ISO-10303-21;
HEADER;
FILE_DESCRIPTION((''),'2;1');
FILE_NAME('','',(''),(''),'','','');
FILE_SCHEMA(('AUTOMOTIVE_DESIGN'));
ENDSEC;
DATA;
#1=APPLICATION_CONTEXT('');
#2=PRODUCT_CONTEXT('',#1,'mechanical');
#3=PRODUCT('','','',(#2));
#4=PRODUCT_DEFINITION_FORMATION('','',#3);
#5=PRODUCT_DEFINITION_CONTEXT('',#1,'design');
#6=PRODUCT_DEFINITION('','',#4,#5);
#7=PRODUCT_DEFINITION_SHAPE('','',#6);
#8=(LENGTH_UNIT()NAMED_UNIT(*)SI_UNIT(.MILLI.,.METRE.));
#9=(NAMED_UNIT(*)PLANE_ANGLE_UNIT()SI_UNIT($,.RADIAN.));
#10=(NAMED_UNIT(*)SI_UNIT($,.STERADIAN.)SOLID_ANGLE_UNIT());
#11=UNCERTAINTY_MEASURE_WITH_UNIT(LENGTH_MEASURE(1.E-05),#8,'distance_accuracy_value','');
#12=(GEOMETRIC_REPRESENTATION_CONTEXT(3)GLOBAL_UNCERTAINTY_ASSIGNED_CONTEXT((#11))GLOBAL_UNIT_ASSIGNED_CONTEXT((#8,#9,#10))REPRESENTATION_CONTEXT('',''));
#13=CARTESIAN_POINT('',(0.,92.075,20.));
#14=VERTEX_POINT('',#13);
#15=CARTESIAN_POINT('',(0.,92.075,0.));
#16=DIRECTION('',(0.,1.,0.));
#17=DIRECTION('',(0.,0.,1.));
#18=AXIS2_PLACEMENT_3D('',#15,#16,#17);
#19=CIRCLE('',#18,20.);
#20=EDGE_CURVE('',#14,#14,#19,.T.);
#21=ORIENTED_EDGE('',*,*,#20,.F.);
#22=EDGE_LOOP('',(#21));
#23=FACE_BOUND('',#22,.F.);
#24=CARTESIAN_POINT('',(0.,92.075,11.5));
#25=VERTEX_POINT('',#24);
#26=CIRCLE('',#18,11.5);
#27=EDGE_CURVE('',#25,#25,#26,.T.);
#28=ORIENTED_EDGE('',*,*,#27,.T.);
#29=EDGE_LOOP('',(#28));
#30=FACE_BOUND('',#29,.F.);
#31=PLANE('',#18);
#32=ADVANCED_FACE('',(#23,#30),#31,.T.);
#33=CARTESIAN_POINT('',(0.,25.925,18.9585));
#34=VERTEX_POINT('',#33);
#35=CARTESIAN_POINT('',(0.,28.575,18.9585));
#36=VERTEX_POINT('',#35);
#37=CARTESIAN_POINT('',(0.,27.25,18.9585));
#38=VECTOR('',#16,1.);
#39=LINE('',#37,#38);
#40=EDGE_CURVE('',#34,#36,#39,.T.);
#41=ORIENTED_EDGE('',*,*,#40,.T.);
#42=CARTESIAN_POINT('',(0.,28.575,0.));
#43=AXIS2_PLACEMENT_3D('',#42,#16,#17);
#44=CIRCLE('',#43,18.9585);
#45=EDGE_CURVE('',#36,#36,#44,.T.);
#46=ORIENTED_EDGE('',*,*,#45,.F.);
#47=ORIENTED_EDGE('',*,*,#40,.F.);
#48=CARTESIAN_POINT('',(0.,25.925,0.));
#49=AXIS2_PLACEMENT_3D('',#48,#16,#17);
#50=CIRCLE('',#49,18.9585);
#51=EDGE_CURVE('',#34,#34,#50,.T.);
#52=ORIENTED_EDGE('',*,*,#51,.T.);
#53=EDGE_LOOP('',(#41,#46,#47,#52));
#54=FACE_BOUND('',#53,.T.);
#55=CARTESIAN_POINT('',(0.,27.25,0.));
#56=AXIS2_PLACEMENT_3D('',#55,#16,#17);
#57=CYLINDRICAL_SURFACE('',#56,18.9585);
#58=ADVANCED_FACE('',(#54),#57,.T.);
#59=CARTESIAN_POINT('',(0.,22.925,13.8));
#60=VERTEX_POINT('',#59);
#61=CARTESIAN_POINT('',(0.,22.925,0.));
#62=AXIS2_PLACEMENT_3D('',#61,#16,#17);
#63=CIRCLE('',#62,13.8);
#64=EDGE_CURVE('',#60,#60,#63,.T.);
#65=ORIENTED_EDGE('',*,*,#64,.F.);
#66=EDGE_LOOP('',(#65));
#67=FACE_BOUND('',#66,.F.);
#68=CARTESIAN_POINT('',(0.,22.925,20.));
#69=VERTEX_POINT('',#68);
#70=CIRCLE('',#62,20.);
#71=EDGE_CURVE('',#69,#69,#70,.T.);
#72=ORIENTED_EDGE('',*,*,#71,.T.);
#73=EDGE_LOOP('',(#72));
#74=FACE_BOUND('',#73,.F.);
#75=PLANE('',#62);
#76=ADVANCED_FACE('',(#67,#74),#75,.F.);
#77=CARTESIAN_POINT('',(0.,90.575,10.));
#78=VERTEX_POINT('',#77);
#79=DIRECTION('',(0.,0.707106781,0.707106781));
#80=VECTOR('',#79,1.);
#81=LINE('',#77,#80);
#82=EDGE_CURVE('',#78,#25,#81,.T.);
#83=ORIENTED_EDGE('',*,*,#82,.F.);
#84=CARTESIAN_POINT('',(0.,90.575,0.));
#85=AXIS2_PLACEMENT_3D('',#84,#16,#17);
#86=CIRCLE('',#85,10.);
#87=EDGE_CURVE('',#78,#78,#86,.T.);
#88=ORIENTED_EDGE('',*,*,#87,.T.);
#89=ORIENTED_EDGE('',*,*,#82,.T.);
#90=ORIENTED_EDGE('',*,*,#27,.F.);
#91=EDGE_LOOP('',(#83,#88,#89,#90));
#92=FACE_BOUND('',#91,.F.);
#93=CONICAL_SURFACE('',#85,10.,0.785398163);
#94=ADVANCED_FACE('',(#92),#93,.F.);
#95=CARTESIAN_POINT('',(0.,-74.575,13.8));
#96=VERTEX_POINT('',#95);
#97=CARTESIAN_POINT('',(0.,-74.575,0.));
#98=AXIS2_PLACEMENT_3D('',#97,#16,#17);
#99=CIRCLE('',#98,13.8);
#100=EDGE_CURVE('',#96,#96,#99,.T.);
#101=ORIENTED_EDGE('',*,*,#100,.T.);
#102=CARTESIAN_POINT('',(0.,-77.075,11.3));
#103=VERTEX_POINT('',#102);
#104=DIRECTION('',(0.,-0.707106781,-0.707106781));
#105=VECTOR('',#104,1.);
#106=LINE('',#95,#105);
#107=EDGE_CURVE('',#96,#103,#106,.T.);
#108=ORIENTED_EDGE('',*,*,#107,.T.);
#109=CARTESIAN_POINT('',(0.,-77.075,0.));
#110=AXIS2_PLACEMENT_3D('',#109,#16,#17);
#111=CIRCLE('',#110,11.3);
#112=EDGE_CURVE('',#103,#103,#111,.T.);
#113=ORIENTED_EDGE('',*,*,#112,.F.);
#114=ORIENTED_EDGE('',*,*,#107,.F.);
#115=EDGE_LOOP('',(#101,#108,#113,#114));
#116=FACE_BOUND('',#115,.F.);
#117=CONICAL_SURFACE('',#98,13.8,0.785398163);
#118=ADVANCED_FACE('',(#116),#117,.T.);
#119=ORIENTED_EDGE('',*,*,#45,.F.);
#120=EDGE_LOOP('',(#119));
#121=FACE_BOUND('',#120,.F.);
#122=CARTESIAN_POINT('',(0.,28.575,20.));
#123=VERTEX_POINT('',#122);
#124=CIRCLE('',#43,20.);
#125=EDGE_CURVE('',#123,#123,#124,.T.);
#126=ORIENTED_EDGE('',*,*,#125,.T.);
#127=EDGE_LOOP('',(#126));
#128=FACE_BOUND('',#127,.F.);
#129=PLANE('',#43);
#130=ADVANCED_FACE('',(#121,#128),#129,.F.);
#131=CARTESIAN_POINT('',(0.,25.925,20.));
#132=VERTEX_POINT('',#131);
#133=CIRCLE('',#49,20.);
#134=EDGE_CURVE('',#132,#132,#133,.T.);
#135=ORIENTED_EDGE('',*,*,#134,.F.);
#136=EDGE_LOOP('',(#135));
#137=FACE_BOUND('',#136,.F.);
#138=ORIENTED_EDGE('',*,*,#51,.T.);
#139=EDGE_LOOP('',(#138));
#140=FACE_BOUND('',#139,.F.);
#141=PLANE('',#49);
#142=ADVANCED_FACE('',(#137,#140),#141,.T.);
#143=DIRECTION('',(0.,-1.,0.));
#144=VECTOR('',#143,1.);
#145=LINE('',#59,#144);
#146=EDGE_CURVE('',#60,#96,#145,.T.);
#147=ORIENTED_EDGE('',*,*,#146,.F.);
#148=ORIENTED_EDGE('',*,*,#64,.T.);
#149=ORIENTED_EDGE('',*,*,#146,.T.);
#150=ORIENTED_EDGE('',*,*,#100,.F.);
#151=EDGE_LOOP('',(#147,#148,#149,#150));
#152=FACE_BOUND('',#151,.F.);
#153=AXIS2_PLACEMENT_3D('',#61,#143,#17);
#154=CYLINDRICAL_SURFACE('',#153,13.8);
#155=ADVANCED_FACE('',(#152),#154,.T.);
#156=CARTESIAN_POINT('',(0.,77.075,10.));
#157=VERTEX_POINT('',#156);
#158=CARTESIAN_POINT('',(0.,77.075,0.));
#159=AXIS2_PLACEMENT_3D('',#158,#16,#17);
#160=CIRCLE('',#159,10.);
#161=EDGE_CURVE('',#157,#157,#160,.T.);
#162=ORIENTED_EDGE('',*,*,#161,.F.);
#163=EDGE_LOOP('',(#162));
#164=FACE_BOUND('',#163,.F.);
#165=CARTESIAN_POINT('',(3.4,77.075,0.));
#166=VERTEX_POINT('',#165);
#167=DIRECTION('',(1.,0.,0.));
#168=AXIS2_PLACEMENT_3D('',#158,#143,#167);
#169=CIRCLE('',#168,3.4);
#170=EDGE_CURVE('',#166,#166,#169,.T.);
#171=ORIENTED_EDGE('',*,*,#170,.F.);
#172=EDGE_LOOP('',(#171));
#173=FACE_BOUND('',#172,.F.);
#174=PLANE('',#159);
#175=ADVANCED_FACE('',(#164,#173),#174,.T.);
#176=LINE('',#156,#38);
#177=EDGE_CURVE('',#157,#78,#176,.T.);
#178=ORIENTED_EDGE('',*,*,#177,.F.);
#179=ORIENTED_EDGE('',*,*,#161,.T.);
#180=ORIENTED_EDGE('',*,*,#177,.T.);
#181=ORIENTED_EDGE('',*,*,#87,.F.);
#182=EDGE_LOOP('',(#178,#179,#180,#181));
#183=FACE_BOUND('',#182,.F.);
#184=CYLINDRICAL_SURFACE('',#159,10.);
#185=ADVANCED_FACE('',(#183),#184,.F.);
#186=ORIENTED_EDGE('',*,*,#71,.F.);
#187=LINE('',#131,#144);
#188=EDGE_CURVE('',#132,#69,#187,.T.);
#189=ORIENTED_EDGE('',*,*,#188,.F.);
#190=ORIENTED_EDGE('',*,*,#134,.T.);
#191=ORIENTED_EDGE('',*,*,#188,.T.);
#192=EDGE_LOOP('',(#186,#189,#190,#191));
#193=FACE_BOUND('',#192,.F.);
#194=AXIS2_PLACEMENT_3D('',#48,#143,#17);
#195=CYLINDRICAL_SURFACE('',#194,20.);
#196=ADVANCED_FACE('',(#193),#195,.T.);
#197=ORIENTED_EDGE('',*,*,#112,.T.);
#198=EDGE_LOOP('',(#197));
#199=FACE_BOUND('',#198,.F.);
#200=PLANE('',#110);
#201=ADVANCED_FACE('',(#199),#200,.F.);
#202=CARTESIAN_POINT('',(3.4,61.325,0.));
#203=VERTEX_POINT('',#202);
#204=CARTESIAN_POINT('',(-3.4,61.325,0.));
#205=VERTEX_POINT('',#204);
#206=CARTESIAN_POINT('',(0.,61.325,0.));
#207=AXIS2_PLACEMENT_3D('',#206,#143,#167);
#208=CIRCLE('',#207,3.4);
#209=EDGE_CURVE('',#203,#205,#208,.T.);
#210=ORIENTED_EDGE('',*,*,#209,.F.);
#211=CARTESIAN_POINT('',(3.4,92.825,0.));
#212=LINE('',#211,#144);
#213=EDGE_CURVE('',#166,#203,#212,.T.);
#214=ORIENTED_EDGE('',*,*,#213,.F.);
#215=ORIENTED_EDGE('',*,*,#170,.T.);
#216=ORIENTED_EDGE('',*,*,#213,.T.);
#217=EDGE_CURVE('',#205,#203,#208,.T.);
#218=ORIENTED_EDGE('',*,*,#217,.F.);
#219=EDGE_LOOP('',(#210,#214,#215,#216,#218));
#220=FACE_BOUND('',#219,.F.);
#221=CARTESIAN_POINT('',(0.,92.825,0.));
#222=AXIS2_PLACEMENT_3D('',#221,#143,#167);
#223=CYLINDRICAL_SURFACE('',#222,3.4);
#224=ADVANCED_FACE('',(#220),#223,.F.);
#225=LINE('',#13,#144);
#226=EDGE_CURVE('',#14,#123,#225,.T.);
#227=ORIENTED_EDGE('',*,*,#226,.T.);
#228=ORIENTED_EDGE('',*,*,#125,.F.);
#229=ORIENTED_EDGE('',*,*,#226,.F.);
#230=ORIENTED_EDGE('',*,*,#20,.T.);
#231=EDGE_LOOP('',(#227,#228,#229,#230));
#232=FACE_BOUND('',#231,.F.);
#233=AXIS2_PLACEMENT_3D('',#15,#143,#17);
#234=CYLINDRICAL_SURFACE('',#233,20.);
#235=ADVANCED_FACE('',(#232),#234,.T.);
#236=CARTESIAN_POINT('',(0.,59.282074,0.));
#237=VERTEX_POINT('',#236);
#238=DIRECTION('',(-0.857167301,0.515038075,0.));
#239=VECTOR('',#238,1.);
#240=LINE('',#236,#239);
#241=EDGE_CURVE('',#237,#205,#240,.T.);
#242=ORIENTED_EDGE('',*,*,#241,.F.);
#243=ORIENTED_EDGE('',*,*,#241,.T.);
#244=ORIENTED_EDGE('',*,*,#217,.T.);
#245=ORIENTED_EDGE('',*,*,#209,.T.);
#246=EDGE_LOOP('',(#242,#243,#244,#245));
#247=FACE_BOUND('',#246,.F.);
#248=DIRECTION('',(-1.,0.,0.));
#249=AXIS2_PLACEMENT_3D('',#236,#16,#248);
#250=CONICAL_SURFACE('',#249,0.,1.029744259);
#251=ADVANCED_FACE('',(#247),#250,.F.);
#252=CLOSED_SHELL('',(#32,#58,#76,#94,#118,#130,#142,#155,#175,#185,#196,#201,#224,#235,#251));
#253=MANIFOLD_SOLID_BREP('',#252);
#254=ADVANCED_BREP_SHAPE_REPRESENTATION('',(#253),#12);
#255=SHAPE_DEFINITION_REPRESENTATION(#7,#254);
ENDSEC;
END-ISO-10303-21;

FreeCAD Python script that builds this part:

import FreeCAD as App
import Part
import Sketcher


def edges_at(feature, points):
    """Names of the edges that pass closest to the given points."""
    edges = feature.Shape.Edges
    near = lambda p: min(range(len(edges)), key=lambda i: edges[i].distToShape(Part.Vertex(*p))[0])
    return sorted({f"Edge{near(p) + 1}" for p in points})

doc = App.newDocument("Part")
body = doc.addObject("PartDesign::Body", "Body")

sketch1 = body.newObject("Sketcher::SketchObject", "Sketch")
sketch1.AttachmentSupport = (doc.getObject("YZ_Plane"), [""])
sketch1.MapMode = "FlatFace"
sketch1.addGeometry([
    Part.LineSegment(App.Vector(-77.1, 13.8, 0), App.Vector(-77.1, 0, 0)),
    Part.LineSegment(App.Vector(-77.1, 0, 0), App.Vector(77.1, 0, 0)),
    Part.LineSegment(App.Vector(77.1, 0, 0), App.Vector(77.1, 10, 0)),
    Part.LineSegment(App.Vector(77.1, 10, 0), App.Vector(92.1, 10, 0)),
    Part.LineSegment(App.Vector(92.1, 10, 0), App.Vector(92.1, 20, 0)),
    Part.LineSegment(App.Vector(92.1, 20, 0), App.Vector(28.6, 20, 0)),
    Part.LineSegment(App.Vector(28.6, 20, 0), App.Vector(28.6, 19, 0)),
    Part.LineSegment(App.Vector(28.6, 19, 0), App.Vector(25.9, 19, 0)),
    Part.LineSegment(App.Vector(25.9, 19, 0), App.Vector(25.9, 20, 0)),
    Part.LineSegment(App.Vector(25.9, 20, 0), App.Vector(22.9, 20, 0)),
    Part.LineSegment(App.Vector(22.9, 20, 0), App.Vector(22.9, 13.8, 0)),
    Part.LineSegment(App.Vector(22.9, 13.8, 0), App.Vector(-77.1, 13.8, 0)),
], False)
sketch1.addConstraint([
    Sketcher.Constraint("Coincident", 0, 2, 1, 1),
    Sketcher.Constraint("Coincident", 1, 2, 2, 1),
    Sketcher.Constraint("Coincident", 2, 2, 3, 1),
    Sketcher.Constraint("Coincident", 3, 2, 4, 1),
    Sketcher.Constraint("Coincident", 4, 2, 5, 1),
    Sketcher.Constraint("Coincident", 5, 2, 6, 1),
    Sketcher.Constraint("Coincident", 6, 2, 7, 1),
    Sketcher.Constraint("Coincident", 7, 2, 8, 1),
    Sketcher.Constraint("Coincident", 8, 2, 9, 1),
    Sketcher.Constraint("Coincident", 9, 2, 10, 1),
    Sketcher.Constraint("Coincident", 10, 2, 11, 1),
    Sketcher.Constraint("Coincident", 11, 2, 0, 1),
    Sketcher.Constraint("Vertical", 0),
    Sketcher.Constraint("Horizontal", 1),
    Sketcher.Constraint("Vertical", 2),
    Sketcher.Constraint("Horizontal", 3),
    Sketcher.Constraint("Vertical", 4),
    Sketcher.Constraint("Horizontal", 5),
    Sketcher.Constraint("Vertical", 6),
    Sketcher.Constraint("Horizontal", 7),
    Sketcher.Constraint("Vertical", 8),
    Sketcher.Constraint("Horizontal", 9),
    Sketcher.Constraint("Vertical", 10),
    Sketcher.Constraint("Horizontal", 11),
    Sketcher.Constraint("Symmetric", 0, 2, 1, 2, -1, 1),
    Sketcher.Constraint("Horizontal", 5, 2, 8, 2),
    Sketcher.Constraint("Equal", 2, 4),
    Sketcher.Constraint("DistanceX", 3, 1, 3, 2, 15.0),
    Sketcher.Constraint("DistanceX", 9, 2, 9, 1, 3.0),
    Sketcher.Constraint("DistanceX", 11, 2, 11, 1, 100.0),
    Sketcher.Constraint("DistanceY", 2, 1, 2, 2, 10.0),
    Sketcher.Constraint("DistanceX", 5, 2, 5, 1, 63.5),
    Sketcher.Constraint("DistanceY", 0, 2, 0, 1, 13.8),
    Sketcher.Constraint("DistanceX", 1, 1, 1, 2, 154.15),
    Sketcher.Constraint("DistanceY", 6, 2, 6, 1, 1.0415),
])
revolution = body.newObject("PartDesign::Revolution", "Revolution")
revolution.Profile = sketch1
revolution.ReferenceAxis = (sketch1, ["H_Axis"])
revolution.Angle = 360
doc.recompute()

chamfer = body.newObject("PartDesign::Chamfer", "Chamfer")
chamfer.Base = (revolution, edges_at(revolution, [(0, 92.075, -10)]))
chamfer.ChamferType = "Two distances"
chamfer.Size = 1.5
chamfer.Size2 = 1.5

sketch2 = body.newObject("Sketcher::SketchObject", "Sketch001")
sketch2.AttachmentSupport = (doc.getObject("XZ_Plane"), [""])
sketch2.MapMode = "FlatFace"
sketch2.AttachmentOffset = App.Placement(App.Vector(0, 0, -77.075), App.Rotation())
sketch2.addGeometry(Part.Circle(App.Vector(0, 0, 0), App.Vector(0, 0, 1), 3.4), False)
sketch2.addConstraint([
    Sketcher.Constraint("Coincident", 0, 3, -1, 1),
    Sketcher.Constraint("Diameter", 0, 6.8),
])
doc.recompute()
hole = body.newObject("PartDesign::Hole", "Hole")
hole.Profile = sketch2
hole.ThreadType = "None"
hole.Diameter = 6.8
hole.DepthType = "Dimension"
hole.Depth = 15.75
hole.DrillPoint = "Angled"
hole.DrillPointAngle = 118
hole.Reversed = True
doc.recompute()

chamfer2 = body.newObject("PartDesign::Chamfer", "Chamfer001")
chamfer2.Base = (hole, edges_at(hole, [(0, -77.075, -13.8)]))
chamfer2.ChamferType = "Two distances"
chamfer2.Size = 2.5
chamfer2.Size2 = 2.5

doc.recompute()
